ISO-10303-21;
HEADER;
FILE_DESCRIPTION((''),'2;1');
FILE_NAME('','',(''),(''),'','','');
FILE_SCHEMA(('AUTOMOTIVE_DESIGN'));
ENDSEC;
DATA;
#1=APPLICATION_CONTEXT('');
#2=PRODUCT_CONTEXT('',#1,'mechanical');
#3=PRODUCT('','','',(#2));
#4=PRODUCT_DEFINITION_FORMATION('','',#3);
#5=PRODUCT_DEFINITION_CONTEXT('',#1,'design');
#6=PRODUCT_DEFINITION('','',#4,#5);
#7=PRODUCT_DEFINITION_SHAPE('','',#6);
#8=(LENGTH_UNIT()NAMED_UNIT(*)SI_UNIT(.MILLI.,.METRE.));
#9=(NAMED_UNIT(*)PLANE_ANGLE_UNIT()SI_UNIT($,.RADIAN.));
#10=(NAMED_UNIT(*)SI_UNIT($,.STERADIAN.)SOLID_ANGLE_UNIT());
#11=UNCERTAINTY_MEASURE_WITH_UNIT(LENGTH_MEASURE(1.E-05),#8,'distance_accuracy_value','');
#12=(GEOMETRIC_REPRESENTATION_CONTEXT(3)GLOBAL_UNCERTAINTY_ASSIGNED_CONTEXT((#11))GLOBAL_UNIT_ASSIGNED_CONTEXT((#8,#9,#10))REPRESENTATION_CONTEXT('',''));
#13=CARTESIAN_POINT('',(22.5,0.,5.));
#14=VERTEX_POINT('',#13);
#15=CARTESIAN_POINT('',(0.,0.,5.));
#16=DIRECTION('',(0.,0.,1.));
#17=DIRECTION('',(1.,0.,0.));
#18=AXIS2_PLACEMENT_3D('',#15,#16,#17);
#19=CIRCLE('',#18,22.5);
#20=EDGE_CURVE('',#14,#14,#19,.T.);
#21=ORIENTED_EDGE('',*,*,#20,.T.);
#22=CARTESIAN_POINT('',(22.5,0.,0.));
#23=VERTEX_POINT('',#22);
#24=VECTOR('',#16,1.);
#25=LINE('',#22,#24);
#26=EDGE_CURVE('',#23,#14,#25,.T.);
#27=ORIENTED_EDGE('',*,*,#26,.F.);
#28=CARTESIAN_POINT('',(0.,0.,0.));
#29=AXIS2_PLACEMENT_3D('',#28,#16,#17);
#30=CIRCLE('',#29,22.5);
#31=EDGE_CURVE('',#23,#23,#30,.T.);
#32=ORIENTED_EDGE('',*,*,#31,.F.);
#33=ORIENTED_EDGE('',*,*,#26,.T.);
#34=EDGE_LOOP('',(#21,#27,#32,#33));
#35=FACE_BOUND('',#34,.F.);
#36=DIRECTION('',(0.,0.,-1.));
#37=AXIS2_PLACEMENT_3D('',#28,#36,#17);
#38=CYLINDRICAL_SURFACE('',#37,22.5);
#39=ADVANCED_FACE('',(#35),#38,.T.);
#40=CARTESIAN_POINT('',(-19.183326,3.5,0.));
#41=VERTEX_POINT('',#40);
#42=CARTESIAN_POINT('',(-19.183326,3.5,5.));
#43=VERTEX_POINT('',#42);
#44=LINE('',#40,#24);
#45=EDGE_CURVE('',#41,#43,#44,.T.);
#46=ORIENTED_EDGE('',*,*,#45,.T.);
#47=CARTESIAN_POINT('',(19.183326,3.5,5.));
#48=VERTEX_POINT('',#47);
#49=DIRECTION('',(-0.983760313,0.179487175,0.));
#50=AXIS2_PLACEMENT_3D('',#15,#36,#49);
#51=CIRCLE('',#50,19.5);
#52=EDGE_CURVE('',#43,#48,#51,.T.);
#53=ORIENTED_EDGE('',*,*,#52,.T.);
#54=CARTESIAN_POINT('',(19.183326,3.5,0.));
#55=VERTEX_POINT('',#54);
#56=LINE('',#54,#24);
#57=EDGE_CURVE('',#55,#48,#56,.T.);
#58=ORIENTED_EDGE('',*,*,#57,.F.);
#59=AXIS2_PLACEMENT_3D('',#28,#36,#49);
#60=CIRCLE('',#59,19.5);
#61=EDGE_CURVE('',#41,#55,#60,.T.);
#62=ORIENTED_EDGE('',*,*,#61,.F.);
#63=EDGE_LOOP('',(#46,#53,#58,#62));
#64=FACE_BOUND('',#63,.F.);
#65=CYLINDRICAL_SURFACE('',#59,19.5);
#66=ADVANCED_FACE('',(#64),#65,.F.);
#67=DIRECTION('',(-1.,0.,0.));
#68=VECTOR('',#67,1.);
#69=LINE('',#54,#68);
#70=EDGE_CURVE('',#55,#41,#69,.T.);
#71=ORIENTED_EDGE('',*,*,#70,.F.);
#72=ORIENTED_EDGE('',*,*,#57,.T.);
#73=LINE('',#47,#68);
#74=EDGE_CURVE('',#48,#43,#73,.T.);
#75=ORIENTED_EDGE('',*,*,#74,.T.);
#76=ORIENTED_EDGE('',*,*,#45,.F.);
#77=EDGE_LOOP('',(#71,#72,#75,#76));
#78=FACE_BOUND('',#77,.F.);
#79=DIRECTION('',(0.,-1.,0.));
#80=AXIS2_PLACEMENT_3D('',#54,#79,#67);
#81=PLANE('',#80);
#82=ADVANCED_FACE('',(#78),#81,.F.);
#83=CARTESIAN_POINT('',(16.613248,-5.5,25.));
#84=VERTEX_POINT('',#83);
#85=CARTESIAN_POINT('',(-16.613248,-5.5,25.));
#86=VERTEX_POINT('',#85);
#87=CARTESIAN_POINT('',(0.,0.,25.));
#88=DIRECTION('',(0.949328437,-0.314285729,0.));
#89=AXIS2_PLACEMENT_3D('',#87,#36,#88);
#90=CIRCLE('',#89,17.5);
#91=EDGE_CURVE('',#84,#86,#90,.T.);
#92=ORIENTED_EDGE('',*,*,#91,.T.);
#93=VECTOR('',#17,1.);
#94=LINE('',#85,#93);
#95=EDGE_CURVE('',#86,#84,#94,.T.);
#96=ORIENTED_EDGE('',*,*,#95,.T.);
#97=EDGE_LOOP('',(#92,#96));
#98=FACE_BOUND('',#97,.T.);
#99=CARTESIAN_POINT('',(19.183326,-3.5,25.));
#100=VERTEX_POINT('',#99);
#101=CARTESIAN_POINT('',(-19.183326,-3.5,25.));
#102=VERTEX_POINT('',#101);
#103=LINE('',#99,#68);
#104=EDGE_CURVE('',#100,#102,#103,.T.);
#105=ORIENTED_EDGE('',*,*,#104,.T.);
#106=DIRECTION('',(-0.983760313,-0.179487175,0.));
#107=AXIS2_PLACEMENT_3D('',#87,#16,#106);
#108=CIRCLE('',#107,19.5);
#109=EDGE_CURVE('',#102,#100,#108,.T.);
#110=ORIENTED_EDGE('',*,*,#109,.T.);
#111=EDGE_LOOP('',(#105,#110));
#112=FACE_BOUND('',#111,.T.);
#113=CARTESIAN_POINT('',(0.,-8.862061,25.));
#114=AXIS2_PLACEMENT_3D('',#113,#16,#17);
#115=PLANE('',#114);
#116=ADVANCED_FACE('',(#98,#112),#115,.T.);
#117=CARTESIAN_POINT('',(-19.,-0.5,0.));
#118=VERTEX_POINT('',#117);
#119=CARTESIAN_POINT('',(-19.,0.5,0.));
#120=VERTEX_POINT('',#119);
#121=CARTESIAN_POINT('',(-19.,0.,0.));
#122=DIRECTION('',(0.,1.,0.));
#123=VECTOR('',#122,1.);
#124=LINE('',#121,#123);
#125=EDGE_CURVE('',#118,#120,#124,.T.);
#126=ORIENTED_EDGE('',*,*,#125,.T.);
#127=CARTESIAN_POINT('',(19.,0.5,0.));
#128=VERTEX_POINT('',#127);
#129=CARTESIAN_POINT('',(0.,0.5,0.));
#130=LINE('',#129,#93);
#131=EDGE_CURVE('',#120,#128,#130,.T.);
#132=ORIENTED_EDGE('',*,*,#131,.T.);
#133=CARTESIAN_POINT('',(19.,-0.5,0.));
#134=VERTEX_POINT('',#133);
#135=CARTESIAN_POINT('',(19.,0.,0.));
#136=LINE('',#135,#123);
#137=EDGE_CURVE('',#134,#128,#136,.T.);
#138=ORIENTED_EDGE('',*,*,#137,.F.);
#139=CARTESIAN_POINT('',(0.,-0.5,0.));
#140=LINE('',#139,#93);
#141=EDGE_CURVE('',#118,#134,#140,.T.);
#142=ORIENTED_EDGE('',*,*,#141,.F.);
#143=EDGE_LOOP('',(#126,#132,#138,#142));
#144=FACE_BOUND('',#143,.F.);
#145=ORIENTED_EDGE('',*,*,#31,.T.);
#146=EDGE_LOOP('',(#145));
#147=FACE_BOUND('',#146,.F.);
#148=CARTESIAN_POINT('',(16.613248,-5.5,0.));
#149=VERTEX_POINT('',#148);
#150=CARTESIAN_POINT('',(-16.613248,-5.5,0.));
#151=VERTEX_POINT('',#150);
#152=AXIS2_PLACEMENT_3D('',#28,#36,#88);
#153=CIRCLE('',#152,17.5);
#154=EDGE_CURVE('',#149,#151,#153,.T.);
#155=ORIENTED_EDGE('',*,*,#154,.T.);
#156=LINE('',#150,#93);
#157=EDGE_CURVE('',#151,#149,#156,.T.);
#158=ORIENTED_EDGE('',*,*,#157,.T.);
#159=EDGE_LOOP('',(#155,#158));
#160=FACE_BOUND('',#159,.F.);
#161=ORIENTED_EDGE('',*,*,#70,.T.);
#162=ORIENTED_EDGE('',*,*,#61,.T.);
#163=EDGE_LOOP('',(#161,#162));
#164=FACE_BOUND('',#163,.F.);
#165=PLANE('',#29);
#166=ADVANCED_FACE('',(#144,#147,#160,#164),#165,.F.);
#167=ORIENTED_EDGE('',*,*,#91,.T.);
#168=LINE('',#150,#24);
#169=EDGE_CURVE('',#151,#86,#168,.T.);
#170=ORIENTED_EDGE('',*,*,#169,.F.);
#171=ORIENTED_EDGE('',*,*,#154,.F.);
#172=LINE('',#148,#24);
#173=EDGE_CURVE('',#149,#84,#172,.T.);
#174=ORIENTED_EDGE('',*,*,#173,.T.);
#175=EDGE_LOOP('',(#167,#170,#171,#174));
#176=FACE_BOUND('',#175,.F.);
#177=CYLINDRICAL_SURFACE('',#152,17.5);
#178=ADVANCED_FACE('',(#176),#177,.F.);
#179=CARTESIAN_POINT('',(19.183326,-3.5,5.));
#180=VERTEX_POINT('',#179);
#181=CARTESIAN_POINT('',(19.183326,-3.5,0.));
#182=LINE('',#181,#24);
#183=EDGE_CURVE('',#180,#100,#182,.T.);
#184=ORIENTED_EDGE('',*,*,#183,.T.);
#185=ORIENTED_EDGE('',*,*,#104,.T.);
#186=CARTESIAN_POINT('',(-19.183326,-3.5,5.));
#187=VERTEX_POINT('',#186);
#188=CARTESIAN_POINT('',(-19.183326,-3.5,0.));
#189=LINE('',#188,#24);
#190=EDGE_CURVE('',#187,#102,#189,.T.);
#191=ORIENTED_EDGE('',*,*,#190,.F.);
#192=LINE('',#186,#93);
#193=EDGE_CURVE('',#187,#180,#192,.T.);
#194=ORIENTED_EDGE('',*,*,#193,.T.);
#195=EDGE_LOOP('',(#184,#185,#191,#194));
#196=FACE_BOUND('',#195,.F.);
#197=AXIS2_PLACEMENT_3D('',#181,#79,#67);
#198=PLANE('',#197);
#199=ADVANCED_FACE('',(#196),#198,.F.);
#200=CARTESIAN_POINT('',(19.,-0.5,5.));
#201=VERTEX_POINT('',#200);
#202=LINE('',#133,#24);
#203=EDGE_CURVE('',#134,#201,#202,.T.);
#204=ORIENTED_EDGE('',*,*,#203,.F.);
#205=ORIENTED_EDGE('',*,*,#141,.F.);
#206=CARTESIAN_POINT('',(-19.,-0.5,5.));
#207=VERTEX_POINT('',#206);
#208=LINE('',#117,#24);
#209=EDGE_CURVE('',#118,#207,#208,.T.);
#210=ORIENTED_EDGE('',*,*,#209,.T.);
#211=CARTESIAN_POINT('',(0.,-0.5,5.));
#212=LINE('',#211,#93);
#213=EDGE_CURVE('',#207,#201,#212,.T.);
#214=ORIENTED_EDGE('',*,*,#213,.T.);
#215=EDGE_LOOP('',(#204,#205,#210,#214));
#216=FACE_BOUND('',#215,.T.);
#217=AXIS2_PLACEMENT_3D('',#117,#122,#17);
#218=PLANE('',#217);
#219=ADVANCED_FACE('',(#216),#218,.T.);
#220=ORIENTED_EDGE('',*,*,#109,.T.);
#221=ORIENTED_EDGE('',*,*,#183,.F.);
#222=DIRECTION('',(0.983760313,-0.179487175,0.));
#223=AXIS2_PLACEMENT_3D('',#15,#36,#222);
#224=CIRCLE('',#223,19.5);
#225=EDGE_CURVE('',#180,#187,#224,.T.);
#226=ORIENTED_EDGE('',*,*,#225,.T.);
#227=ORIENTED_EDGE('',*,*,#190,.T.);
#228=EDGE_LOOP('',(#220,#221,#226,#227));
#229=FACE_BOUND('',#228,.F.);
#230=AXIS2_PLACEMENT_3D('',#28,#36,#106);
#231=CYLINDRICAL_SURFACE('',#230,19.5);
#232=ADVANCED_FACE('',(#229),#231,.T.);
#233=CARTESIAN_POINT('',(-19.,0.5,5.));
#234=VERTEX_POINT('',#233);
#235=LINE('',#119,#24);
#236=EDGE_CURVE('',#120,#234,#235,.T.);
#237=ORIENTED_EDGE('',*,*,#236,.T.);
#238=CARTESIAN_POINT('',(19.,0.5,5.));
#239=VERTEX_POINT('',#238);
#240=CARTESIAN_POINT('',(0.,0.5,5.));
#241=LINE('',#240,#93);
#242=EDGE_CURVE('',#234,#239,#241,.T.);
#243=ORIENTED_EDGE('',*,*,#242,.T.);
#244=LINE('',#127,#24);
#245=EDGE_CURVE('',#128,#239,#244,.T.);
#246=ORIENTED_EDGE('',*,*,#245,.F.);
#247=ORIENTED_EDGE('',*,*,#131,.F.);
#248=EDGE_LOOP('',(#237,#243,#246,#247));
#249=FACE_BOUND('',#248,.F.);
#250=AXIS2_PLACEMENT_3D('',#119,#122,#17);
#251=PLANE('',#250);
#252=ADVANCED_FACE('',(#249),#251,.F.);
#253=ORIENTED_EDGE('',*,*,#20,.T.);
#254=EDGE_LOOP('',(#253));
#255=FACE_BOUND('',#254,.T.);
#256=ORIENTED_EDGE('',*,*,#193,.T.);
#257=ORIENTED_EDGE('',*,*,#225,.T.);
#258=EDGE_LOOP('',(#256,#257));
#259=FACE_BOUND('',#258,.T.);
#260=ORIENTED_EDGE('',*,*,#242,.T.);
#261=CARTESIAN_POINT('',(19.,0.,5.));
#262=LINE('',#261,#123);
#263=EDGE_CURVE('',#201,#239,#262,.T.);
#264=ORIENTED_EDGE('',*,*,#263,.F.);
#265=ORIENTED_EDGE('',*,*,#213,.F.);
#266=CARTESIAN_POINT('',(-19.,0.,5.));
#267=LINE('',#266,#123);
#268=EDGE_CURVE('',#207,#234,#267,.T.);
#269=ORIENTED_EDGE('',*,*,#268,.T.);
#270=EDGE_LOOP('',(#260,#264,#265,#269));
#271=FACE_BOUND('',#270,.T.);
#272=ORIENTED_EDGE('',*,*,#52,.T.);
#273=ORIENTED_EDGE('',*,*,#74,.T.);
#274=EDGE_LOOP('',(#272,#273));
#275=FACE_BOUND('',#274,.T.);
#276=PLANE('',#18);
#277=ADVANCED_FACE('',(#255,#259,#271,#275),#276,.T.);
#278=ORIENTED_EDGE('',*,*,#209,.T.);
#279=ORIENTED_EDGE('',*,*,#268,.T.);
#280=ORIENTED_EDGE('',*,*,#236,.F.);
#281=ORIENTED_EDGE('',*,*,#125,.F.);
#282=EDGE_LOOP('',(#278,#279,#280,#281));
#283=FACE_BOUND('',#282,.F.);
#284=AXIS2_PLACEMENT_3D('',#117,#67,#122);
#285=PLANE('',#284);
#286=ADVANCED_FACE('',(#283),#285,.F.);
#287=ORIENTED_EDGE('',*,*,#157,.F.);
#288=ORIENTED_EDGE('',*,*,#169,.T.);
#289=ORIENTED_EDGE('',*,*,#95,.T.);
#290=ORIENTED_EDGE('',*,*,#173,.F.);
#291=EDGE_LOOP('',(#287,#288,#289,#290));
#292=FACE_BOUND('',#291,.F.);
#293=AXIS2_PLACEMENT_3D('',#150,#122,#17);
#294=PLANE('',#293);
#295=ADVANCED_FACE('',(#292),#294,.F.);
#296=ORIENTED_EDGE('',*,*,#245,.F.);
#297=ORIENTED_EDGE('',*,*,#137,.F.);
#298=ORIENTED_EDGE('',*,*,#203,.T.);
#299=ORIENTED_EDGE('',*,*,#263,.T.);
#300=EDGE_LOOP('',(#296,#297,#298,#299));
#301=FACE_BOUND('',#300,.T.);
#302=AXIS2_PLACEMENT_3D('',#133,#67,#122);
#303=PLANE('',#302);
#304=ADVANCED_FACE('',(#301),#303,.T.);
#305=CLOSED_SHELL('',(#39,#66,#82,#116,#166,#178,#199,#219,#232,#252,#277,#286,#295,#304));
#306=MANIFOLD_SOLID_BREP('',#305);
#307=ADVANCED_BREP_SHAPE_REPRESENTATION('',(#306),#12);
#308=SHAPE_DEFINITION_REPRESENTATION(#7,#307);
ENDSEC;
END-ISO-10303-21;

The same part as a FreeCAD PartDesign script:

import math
import FreeCAD as App
import Part
import Sketcher
from FreeCAD import Vector


def add_polygon(sketch, points):
    """Adds a closed chain of lines whose ends are joined by coincident constraints."""
    first, n = sketch.GeometryCount, len(points)
    for a, b in zip(points, points[1:] + points[:1]):
        sketch.addGeometry(Part.LineSegment(App.Vector(*a, 0), App.Vector(*b, 0)), False)
    for i in range(n):
        sketch.addConstraint(Sketcher.Constraint("Coincident", first + i, 2, first + (i + 1) % n, 1))

doc = App.newDocument("Part")
body = doc.addObject("PartDesign::Body", "Body")

# Sketch on XY plane
sketch1 = body.newObject("Sketcher::SketchObject", "Sketch")
sketch1.AttachmentSupport = (doc.getObject("XY_Plane"), [""])
sketch1.MapMode = "FlatFace"
sketch1.addGeometry(Part.Circle(Vector(0, 0, 0), Vector(0, 0, 1), 22.5), False)  # 0
sketch1.addGeometry(Part.LineSegment(Vector(-19.2, -3.5, 0), Vector(19.2, -3.5, 0)), False)  # 1
sketch1.addGeometry(Part.ArcOfCircle(Part.Circle(Vector(0, 0, 0), Vector(0, 0, 1), 19.5), math.radians(-170), math.radians(-10)), False)  # 2
add_polygon(sketch1, [(19, -0.5), (-19, -0.5), (-19, 0.5), (19, 0.5)])  # lines 3-6
sketch1.addGeometry(Part.ArcOfCircle(Part.Circle(Vector(0, 0, 0), Vector(0, 0, 1), 19.5), math.radians(10), math.radians(170)), False)  # 7
sketch1.addGeometry(Part.LineSegment(Vector(19.2, 3.5, 0), Vector(-19.2, 3.5, 0)), False)  # 8
sketch1.addConstraint([
    Sketcher.Constraint("Coincident", 1, 1, 2, 1),
    Sketcher.Constraint("Coincident", 2, 2, 1, 2),
    Sketcher.Constraint("Coincident", 7, 1, 8, 1),
    Sketcher.Constraint("Coincident", 8, 2, 7, 2),
    Sketcher.Constraint("Horizontal", 1),
    Sketcher.Constraint("Horizontal", 3),
    Sketcher.Constraint("Vertical", 4),
    Sketcher.Constraint("Horizontal", 5),
    Sketcher.Constraint("Vertical", 6),
    Sketcher.Constraint("Horizontal", 8),
    Sketcher.Constraint("Coincident", 0, 3, -1, 1),
    Sketcher.Constraint("Coincident", 2, 3, -1, 1),
    Sketcher.Constraint("Coincident", 7, 3, -1, 1),
    Sketcher.Constraint("Equal", 2, 7),
    Sketcher.Constraint("Symmetric", 3, 2, 5, 2, -1, 1),
    Sketcher.Constraint("Vertical", 2, 2, 7, 1),
    Sketcher.Constraint("Diameter", 0, 45.0),
    Sketcher.Constraint("Radius", 2, 19.5),
    Sketcher.Constraint("DistanceX", 3, 2, 3, 1, 38.0),
    Sketcher.Constraint("DistanceY", 4, 1, 4, 2, 1.0),
    Sketcher.Constraint("DistanceY", 1, 1, 3, 2, 3.0),
])
pad1 = body.newObject("PartDesign::Pad", "Pad")
pad1.Profile = sketch1
pad1.Length = 5

# Sketch on XY plane
sketch2 = body.newObject("Sketcher::SketchObject", "Sketch001")
sketch2.AttachmentSupport = (doc.getObject("XY_Plane"), [""])
sketch2.MapMode = "FlatFace"
sketch2.addGeometry([
    Part.LineSegment(Vector(19, -4, 0), Vector(-19, -4, 0)),
    Part.ArcOfCircle(Part.Circle(Vector(0, 0, 0), Vector(0, 0, 1), 19), math.radians(-170), math.radians(-10)),
    Part.LineSegment(Vector(-17, -6, 0), Vector(17, -6, 0)),
    Part.ArcOfCircle(Part.Circle(Vector(0, 0, 0), Vector(0, 0, 1), 18), math.radians(-162), math.radians(-18)),
], False)
sketch2.addConstraint([
    Sketcher.Constraint("Coincident", 0, 1, 1, 2),
    Sketcher.Constraint("Coincident", 1, 1, 0, 2),
    Sketcher.Constraint("Coincident", 2, 1, 3, 1),
    Sketcher.Constraint("Coincident", 3, 2, 2, 2),
    Sketcher.Constraint("Horizontal", 0),
    Sketcher.Constraint("Horizontal", 2),
    Sketcher.Constraint("Coincident", 1, 3, -1, 1),
    Sketcher.Constraint("Coincident", 3, 3, -1, 1),
    Sketcher.Constraint("Radius", 1, 19.5),
    Sketcher.Constraint("Radius", 3, 17.5),
    Sketcher.Constraint("DistanceY", 2, 1, 1, 1, 2.0),
    Sketcher.Constraint("DistanceY", 0, 1, -1, 1, 3.5),
])
pad2 = body.newObject("PartDesign::Pad", "Pad001")
pad2.Profile = sketch2
pad2.Length = 25

doc.recompute()
